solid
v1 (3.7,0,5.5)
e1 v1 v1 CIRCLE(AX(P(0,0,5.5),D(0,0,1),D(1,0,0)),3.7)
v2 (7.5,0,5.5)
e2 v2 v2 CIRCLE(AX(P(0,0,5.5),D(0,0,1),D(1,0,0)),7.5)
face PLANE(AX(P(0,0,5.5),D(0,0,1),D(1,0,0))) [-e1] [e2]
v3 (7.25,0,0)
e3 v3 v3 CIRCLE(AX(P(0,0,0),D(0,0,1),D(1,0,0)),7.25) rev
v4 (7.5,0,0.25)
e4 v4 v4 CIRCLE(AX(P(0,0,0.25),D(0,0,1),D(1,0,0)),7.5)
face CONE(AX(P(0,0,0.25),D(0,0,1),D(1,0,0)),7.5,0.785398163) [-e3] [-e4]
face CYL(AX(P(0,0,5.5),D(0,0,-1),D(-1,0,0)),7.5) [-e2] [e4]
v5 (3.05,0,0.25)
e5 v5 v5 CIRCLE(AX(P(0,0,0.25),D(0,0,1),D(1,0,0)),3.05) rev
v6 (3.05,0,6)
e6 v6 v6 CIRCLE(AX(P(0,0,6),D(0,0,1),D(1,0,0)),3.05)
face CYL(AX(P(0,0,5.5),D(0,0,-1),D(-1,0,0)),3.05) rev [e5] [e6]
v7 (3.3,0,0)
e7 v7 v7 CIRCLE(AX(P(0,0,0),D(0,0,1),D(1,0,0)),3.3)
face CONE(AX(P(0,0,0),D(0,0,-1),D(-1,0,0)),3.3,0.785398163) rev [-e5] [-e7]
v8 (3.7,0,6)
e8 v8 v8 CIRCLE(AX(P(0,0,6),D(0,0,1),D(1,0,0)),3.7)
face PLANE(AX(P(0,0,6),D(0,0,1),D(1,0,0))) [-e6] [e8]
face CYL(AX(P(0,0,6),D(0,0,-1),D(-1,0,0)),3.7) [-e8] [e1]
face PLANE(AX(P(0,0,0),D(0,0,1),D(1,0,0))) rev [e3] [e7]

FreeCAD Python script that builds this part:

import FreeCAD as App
import Part
import Sketcher

V = App.Vector
Q = App.Units.Quantity


def edges_at(feature, points):
    """Names of the edges that pass closest to the given points."""
    edges = feature.Shape.Edges
    near = lambda p: min(range(len(edges)), key=lambda i: edges[i].distToShape(Part.Vertex(*p))[0])
    return sorted({f"Edge{near(p) + 1}" for p in points})

doc = App.newDocument("Part")
params = doc.addObject("Spreadsheet::Sheet", "Params")
for row, (alias, value) in enumerate([
    ("sketch1_diameter", "15 mm"),
    ("sketch1_diameter2", "6.1 mm"),
    ("pad1_length", "5.5 mm"),
    ("sketch2_diameter", "7.4 mm"),
    ("sketch2_diameter2", "6.1 mm"),
    ("pad2_length", "0.5 mm"),
    ("chamfer_size", "0.25 mm"),
], start=1):
    params.set(f"A{row}", alias)
    params.set(f"B{row}", "=" + value)
    params.setAlias(f"B{row}", alias)

body = doc.addObject("PartDesign::Body", "Body")

# Sketch on XY plane
sketch1 = body.newObject("Sketcher::SketchObject", "Sketch")
sketch1.AttachmentSupport = (doc.getObject("XY_Plane"), [""])
sketch1.MapMode = "FlatFace"
sketch1.addGeometry([
    Part.Circle(V(0, 0, 0), V(0, 0, 1), 7.5),
    Part.Circle(V(0, 0, 0), V(0, 0, 1), 3),
], False)
sketch1.addConstraint([
    Sketcher.Constraint("Coincident", 0, 3, -1, 1),
    Sketcher.Constraint("Coincident", 1, 3, -1, 1),
    Sketcher.Constraint("Diameter", 0, Q("15 mm")),
    Sketcher.Constraint("Diameter", 1, Q("6.1 mm")),
])
sketch1.setExpression("Constraints[2]", "Params.sketch1_diameter")
sketch1.setExpression("Constraints[3]", "Params.sketch1_diameter2")
pad1 = body.newObject("PartDesign::Pad", "Pad")
pad1.Profile = sketch1
pad1.setExpression("Length", "Params.pad1_length")

# Sketch on XY plane
sketch2 = body.newObject("Sketcher::SketchObject", "Sketch001")
sketch2.AttachmentSupport = (doc.getObject("XY_Plane"), [""])
sketch2.MapMode = "FlatFace"
sketch2.AttachmentOffset = App.Placement(V(0, 0, 5.5), App.Rotation())
sketch2.addGeometry([
    Part.Circle(V(0, 0, 0), V(0, 0, 1), 3.7),
    Part.Circle(V(0, 0, 0), V(0, 0, 1), 3),
], False)
sketch2.addConstraint([
    Sketcher.Constraint("Coincident", 0, 3, -1, 1),
    Sketcher.Constraint("Coincident", 1, 3, -1, 1),
    Sketcher.Constraint("Diameter", 0, Q("7.4 mm")),
    Sketcher.Constraint("Diameter", 1, Q("6.1 mm")),
])
sketch2.setExpression("Constraints[2]", "Params.sketch2_diameter")
sketch2.setExpression("Constraints[3]", "Params.sketch2_diameter2")
pad2 = body.newObject("PartDesign::Pad", "Pad001")
pad2.Profile = sketch2
pad2.setExpression("Length", "Params.pad2_length")
doc.recompute()

chamfer = body.newObject("PartDesign::Chamfer", "Chamfer")
chamfer.Base = (pad2, edges_at(pad2, [(-7.5, 0, 0), (-3.05, 0, 0)]))
chamfer.setExpression("Size", "Params.chamfer_size")

doc.recompute()
